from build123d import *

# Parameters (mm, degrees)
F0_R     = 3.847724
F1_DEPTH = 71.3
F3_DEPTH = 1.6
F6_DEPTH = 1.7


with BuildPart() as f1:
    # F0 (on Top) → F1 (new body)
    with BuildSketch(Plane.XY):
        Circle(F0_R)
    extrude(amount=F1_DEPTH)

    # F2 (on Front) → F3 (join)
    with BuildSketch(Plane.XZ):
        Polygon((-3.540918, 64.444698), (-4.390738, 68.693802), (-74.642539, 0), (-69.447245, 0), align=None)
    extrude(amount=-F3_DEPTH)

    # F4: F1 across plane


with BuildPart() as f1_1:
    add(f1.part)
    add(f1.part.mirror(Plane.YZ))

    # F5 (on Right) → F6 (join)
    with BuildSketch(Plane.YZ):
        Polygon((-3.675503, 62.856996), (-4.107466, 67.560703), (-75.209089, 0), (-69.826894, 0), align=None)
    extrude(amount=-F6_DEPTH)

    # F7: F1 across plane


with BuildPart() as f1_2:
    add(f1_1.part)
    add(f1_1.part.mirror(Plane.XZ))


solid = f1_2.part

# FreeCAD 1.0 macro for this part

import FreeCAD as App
import Part
import Sketcher
Q = App.Units.Quantity


def add_polygon(sketch, points):
    """Adds a closed chain of lines whose ends are joined by coincident constraints."""
    first, n = sketch.GeometryCount, len(points)
    for a, b in zip(points, points[1:] + points[:1]):
        sketch.addGeometry(Part.LineSegment(App.Vector(*a, 0), App.Vector(*b, 0)), False)
    for i in range(n):
        sketch.addConstraint(Sketcher.Constraint("Coincident", first + i, 2, first + (i + 1) % n, 1))

doc = App.newDocument("Part")
body = doc.addObject("PartDesign::Body", "Body")

# Sketch on XY plane
sketch1 = body.newObject("Sketcher::SketchObject", "Sketch")
sketch1.AttachmentSupport = (doc.getObject("XY_Plane"), [""])
sketch1.MapMode = "FlatFace"
sketch1.addGeometry(Part.Circle(App.Vector(0, 0, 0), App.Vector(0, 0, 1), 3.8), False)
sketch1.addConstraint([
    Sketcher.Constraint("Coincident", 0, 3, -1, 1),
    Sketcher.Constraint("Diameter", 0, Q("7.695448 mm")),
])
pad1 = body.newObject("PartDesign::Pad", "Pad")
pad1.Profile = sketch1
pad1.Length = 71.3

# Sketch on XZ plane
sketch2 = body.newObject("Sketcher::SketchObject", "Sketch001")
sketch2.AttachmentSupport = (doc.getObject("XZ_Plane"), [""])
sketch2.MapMode = "FlatFace"
add_polygon(sketch2, [(-3.5, 64.4), (-4.4, 68.7), (-74.6, 0), (-69.4, 0)])  # lines 0-3
sketch2.addConstraint([
    Sketcher.Constraint("Horizontal", 2),
    Sketcher.Constraint("PointOnObject", 1, 2, -1),
    Sketcher.Constraint("Parallel", 1, 3),
    Sketcher.Constraint("DistanceY", -1, 1, 3, 2, Q("64.444698 mm")),
    Sketcher.Constraint("DistanceX", 1, 2, 0, 2, Q("70.251801 mm")),
    Sketcher.Constraint("Distance", 3, Q("92.177888 mm")),
    Sketcher.Constraint("DistanceX", 2, 1, 2, 2, Q("5.195294 mm")),
    Sketcher.Constraint("DistanceX", 1, 2, -1, 1, Q("74.642539 mm")),
])
pad2 = body.newObject("PartDesign::Pad", "Pad001")
pad2.Profile = sketch2
pad2.Length = 1.6
pad2.Reversed = True
body2 = doc.addObject("PartDesign::Body", "Body001")
doc.recompute()

body2.BaseFeature = body
doc.recompute()

mirroring = doc.addObject("Part::Mirroring", "Mirroring")
mirroring.Source = body
mirroring.Base = App.Vector(0, 0, 0)
mirroring.Normal = App.Vector(1, 0, 0)
body3 = doc.addObject("PartDesign::Body", "Body002")
body3.BaseFeature = mirroring
boolean = body2.newObject("PartDesign::Boolean", "Boolean")
boolean.Type = "Fuse"
boolean.addObjects([body3])
doc.recompute()

# Sketch on YZ plane
sketch3 = body2.newObject("Sketcher::SketchObject", "Sketch002")
sketch3.AttachmentSupport = (doc.getObject("YZ_Plane001"), [""])
sketch3.MapMode = "FlatFace"
add_polygon(sketch3, [(-3.7, 62.9), (-4.1, 67.6), (-75.2, 0), (-69.8, 0)])  # lines 0-3
sketch3.addConstraint([
    Sketcher.Constraint("Horizontal", 2),
    Sketcher.Constraint("PointOnObject", 1, 2, -1),
    Sketcher.Constraint("Parallel", 1, 3),
    Sketcher.Constraint("Distance", 0, Q("4.7235 mm")),
    Sketcher.Constraint("DistanceX", 2, 1, 2, 2, Q("5.382195 mm")),
    Sketcher.Constraint("DistanceX", 1, 2, -1, 1, Q("75.209089 mm")),
    Sketcher.Constraint("DistanceX", 2, 2, 3, 2, Q("66.151391 mm")),
    Sketcher.Constraint("Distance", 1, Q("98.081035 mm")),
])
pad3 = body2.newObject("PartDesign::Pad", "Pad002")
pad3.Profile = sketch3
pad3.Length = 1.7
pad3.Reversed = True
body4 = doc.addObject("PartDesign::Body", "Body003")
doc.recompute()

body4.BaseFeature = body2
doc.recompute()

mirroring2 = doc.addObject("Part::Mirroring", "Mirroring001")
mirroring2.Source = body2
mirroring2.Base = App.Vector(0, 0, 0)
mirroring2.Normal = App.Vector(0, -1, 0)
body5 = doc.addObject("PartDesign::Body", "Body004")
body5.BaseFeature = mirroring2
boolean2 = body4.newObject("PartDesign::Boolean", "Boolean001")
boolean2.Type = "Fuse"
boolean2.addObjects([body5])
doc.recompute()
mirroring.Visibility = False
mirroring2.Visibility = False

doc.recompute()
